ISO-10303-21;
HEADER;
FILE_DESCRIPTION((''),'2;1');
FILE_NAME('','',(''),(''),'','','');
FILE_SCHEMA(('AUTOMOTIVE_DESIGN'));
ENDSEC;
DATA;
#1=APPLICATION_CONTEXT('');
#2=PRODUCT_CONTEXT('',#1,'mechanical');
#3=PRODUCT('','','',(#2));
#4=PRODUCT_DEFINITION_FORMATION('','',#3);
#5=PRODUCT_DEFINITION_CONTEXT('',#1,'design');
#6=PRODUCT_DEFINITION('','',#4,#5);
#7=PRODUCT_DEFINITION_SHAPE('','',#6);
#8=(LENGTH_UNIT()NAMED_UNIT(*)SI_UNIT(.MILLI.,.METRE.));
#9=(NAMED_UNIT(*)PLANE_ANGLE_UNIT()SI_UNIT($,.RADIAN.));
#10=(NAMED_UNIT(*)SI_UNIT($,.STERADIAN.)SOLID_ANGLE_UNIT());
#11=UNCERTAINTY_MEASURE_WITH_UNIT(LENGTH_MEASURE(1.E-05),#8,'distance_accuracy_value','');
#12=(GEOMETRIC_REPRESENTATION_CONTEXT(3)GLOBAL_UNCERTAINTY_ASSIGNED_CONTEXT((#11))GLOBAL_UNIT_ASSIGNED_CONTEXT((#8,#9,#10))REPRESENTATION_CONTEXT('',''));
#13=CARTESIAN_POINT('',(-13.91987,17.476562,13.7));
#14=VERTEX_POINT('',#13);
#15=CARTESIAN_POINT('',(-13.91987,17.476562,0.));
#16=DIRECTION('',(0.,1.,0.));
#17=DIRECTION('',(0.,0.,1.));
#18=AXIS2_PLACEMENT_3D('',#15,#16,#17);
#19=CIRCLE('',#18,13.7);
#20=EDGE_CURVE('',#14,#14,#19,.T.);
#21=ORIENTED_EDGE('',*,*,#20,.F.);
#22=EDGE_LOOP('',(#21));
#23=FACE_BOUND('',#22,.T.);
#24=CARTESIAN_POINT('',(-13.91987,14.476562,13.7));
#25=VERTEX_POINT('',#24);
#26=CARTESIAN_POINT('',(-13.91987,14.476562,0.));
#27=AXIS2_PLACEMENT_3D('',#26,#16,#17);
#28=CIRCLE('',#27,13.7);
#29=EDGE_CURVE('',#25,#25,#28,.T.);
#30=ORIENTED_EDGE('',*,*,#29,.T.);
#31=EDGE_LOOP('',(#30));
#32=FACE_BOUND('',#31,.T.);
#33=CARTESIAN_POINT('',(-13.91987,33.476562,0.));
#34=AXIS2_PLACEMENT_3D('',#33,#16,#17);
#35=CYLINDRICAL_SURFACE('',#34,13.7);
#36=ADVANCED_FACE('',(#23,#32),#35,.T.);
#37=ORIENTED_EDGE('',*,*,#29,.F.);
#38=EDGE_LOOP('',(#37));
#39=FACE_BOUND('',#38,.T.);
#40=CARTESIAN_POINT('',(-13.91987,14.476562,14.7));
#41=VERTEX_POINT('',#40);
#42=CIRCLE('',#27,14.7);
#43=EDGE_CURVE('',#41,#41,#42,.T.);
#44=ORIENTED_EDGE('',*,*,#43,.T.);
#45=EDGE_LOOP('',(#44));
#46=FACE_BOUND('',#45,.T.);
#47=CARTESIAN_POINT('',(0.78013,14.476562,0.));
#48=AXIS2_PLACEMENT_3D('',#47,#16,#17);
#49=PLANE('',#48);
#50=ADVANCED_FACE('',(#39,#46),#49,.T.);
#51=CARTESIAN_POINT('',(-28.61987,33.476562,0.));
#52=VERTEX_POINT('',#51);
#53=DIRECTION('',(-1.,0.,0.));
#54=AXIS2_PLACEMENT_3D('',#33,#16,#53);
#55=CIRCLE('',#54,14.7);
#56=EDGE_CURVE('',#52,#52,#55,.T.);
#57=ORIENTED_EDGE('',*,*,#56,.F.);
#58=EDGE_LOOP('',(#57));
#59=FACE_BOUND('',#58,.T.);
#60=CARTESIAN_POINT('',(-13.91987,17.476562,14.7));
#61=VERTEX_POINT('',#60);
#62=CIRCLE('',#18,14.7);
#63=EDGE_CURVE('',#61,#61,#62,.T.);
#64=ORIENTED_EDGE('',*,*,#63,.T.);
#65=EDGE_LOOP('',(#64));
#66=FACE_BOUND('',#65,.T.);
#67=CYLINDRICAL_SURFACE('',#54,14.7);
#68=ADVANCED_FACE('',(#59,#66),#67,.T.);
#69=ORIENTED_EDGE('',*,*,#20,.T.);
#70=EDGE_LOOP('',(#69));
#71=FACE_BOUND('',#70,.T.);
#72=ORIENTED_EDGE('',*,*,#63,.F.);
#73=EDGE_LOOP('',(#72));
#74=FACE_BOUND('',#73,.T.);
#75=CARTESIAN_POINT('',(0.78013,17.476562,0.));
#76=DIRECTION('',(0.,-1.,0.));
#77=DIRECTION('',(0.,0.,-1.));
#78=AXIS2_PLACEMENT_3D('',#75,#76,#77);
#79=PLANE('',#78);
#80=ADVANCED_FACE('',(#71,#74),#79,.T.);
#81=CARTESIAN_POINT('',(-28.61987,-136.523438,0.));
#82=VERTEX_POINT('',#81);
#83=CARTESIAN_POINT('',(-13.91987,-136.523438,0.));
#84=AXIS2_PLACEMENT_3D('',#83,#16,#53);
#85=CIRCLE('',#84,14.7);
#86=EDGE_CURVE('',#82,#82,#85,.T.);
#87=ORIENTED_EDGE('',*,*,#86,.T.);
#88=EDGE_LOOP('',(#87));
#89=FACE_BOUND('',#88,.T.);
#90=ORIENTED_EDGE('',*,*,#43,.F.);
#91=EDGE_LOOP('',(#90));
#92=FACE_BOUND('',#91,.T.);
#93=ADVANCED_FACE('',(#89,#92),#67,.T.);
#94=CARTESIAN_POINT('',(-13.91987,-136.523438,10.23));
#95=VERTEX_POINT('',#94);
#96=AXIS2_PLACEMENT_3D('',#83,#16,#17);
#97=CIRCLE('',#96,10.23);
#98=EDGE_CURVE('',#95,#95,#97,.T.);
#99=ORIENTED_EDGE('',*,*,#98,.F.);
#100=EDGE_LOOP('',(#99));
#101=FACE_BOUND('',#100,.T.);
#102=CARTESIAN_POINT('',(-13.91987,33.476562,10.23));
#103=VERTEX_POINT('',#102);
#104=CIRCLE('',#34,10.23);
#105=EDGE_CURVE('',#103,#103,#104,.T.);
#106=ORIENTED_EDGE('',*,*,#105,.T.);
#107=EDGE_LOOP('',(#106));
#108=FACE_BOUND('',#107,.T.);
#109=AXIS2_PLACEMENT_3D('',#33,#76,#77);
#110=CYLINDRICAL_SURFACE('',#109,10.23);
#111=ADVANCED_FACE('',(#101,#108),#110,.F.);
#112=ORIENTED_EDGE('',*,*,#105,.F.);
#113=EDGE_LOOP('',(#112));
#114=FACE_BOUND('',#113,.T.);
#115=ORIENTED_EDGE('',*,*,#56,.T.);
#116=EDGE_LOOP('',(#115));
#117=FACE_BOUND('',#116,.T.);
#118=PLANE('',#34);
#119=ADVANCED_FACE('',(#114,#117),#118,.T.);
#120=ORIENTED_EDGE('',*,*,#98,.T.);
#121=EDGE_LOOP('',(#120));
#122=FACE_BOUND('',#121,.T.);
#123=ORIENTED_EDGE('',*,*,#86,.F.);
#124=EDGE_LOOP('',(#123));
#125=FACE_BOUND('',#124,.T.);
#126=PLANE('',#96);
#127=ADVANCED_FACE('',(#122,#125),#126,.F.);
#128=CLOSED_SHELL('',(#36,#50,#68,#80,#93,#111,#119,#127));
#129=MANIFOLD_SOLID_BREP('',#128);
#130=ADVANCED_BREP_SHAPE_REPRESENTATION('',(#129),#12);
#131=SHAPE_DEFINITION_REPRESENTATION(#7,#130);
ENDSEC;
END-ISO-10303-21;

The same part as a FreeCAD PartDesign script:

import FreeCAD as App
import Part
import Sketcher

V = App.Vector
Q = App.Units.Quantity


def add_polygon(sketch, points):
    """Adds a closed chain of lines whose ends are joined by coincident constraints."""
    first, n = sketch.GeometryCount, len(points)
    for a, b in zip(points, points[1:] + points[:1]):
        sketch.addGeometry(Part.LineSegment(App.Vector(*a, 0), App.Vector(*b, 0)), False)
    for i in range(n):
        sketch.addConstraint(Sketcher.Constraint("Coincident", first + i, 2, first + (i + 1) % n, 1))

doc = App.newDocument("Part")
body = doc.addObject("PartDesign::Body", "Body")

sketch1 = body.newObject("Sketcher::SketchObject", "Sketch")
sketch1.AttachmentSupport = (doc.getObject("XZ_Plane"), [""])
sketch1.MapMode = "FlatFace"
sketch1.AttachmentOffset = App.Placement(V(0, 0, 136.523438), App.Rotation())
sketch1.addGeometry([
    Part.Circle(V(-14, 0, 0), V(0, 0, 1), 16),
    Part.Circle(V(-14, 0, 0), V(0, 0, 1), 10),
], False)
sketch1.addConstraint([
    Sketcher.Constraint("Coincident", 1, 3, 0, 3),
    Sketcher.Constraint("PointOnObject", 0, 3, -1),
    Sketcher.Constraint("Diameter", 0, Q("32 mm")),
    Sketcher.Constraint("Diameter", 1, Q("20.46 mm")),
    Sketcher.Constraint("DistanceX", 0, 3, -1, 1, Q("13.91987 mm")),
])
pad1 = body.newObject("PartDesign::Pad", "Pad")
pad1.Profile = sketch1
pad1.Length = 170
pad1.Reversed = True

sketch2 = body.newObject("Sketcher::SketchObject", "Sketch001")
sketch2.AttachmentSupport = (doc.getObject("XY_Plane"), [""])
sketch2.MapMode = "FlatFace"
add_polygon(sketch2, [(1, 33), (1, -137), (16, -137), (16, 33)])
sketch2.addGeometry(Part.LineSegment(V(-14, 33, 0), V(-14, -137, 0)), True)
sketch2.addConstraint([
    Sketcher.Constraint("Vertical", 0),
    Sketcher.Constraint("Horizontal", 1),
    Sketcher.Constraint("Vertical", 2),
    Sketcher.Constraint("Horizontal", 3),
    Sketcher.Constraint("Vertical", 4),
    Sketcher.Constraint("Horizontal", 3, 2, 4, 1),
    Sketcher.Constraint("Horizontal", 1, 2, 4, 2),
    Sketcher.Constraint("DistanceY", 0, 2, 0, 1, Q("170 mm")),
    Sketcher.Constraint("DistanceX", 4, 1, 3, 2, Q("14.7 mm")),
    Sketcher.Constraint("DistanceX", 1, 1, 1, 2, Q("15.159084 mm")),
    Sketcher.Constraint("DistanceX", -1, 1, 0, 2, Q("0.78013 mm")),
    Sketcher.Constraint("DistanceY", 0, 2, -1, 1, Q("136.523438 mm")),
])
groove = body.newObject("PartDesign::Groove", "Groove")
groove.Profile = sketch2
groove.ReferenceAxis = (sketch2, ["Axis0"])
groove.Angle = 360

sketch3 = body.newObject("Sketcher::SketchObject", "Sketch002")
sketch3.AttachmentSupport = (doc.getObject("XY_Plane"), [""])
sketch3.MapMode = "FlatFace"
add_polygon(sketch3, [(-0.2, 17.5), (-0.2, 14.5), (0.8, 14.5), (0.8, 17.5)])
sketch3.addGeometry(Part.LineSegment(V(-13.9, 17.5, 0), V(-13.9, 14.5, 0)), True)
sketch3.addConstraint([
    Sketcher.Constraint("Vertical", 0),
    Sketcher.Constraint("Horizontal", 1),
    Sketcher.Constraint("Vertical", 2),
    Sketcher.Constraint("Horizontal", 3),
    Sketcher.Constraint("Vertical", 4),
    Sketcher.Constraint("Horizontal", 3, 2, 4, 1),
    Sketcher.Constraint("Horizontal", 1, 2, 4, 2),
    Sketcher.Constraint("DistanceX", 1, 1, 1, 2, Q("1 mm")),
    Sketcher.Constraint("DistanceY", 0, 2, 0, 1, Q("3 mm")),
    Sketcher.Constraint("DistanceX", 4, 1, 3, 2, Q("13.7 mm")),
    Sketcher.Constraint("DistanceX", 0, 2, -1, 1, Q("0.21987 mm")),
    Sketcher.Constraint("DistanceY", -1, 1, 0, 2, Q("14.476562 mm")),
])
groove2 = body.newObject("PartDesign::Groove", "Groove001")
groove2.Profile = sketch3
groove2.ReferenceAxis = (sketch3, ["Axis0"])
groove2.Angle = 360

doc.recompute()
